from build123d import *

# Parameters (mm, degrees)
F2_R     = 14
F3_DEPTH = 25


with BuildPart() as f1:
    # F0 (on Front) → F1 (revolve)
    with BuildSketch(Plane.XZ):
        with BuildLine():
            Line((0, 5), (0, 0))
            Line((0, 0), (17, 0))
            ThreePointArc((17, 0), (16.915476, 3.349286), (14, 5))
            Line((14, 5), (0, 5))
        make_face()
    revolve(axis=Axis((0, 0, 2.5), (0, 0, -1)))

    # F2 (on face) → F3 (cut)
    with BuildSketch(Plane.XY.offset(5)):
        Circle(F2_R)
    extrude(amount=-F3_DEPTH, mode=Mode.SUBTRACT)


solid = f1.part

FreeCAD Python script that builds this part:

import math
import FreeCAD as App
import Part
import Sketcher

V = App.Vector

doc = App.newDocument("Part")
body = doc.addObject("PartDesign::Body", "Body")

sketch1 = doc.addObject("Sketcher::SketchObject", "Sketch")
body.addObject(sketch1)
sketch1.AttachmentSupport = (doc.XZ_Plane, [""])
sketch1.MapMode = "FlatFace"
sketch1.addGeometry(Part.LineSegment(V(0, 5, 0), V(0, 0, 0)), False)
sketch1.addGeometry(Part.LineSegment(V(0, 0, 0), V(17, 0, 0)), False)
sketch1.addGeometry(Part.ArcOfCircle(Part.Circle(V(14, 1.6, 0), V(0, 0, 1), 3.4), math.radians(-28), math.radians(90)), False)
sketch1.addGeometry(Part.LineSegment(V(14, 5, 0), V(0, 5, 0)), False)
sketch1.addConstraint(Sketcher.Constraint("Coincident", 0, 2, 1, 1))
sketch1.addConstraint(Sketcher.Constraint("Coincident", 1, 2, 2, 1))
sketch1.addConstraint(Sketcher.Constraint("Tangent", 2, 2, 3, 1))
sketch1.addConstraint(Sketcher.Constraint("Coincident", 3, 2, 0, 1))
sketch1.addConstraint(Sketcher.Constraint("Vertical", 0))
sketch1.addConstraint(Sketcher.Constraint("Horizontal", 1))
sketch1.addConstraint(Sketcher.Constraint("Horizontal", 3))
sketch1.addConstraint(Sketcher.Constraint("Coincident", 0, 2, -1, 1))
sketch1.addConstraint(Sketcher.Constraint("Radius", 2, 3.4))
sketch1.addConstraint(Sketcher.Constraint("DistanceX", 1, 1, 1, 2, 17.0))
sketch1.addConstraint(Sketcher.Constraint("DistanceX", 3, 2, 3, 1, 14.0))
revolution = doc.addObject("PartDesign::Revolution", "Revolution")
body.addObject(revolution)
revolution.Profile = sketch1
revolution.ReferenceAxis = (sketch1, ["V_Axis"])
revolution.Angle = 360

sketch2 = doc.addObject("Sketcher::SketchObject", "Sketch001")
body.addObject(sketch2)
sketch2.AttachmentSupport = (doc.XY_Plane, [""])
sketch2.MapMode = "FlatFace"
sketch2.AttachmentOffset = App.Placement(V(0, 0, 5), App.Rotation())
sketch2.addGeometry(Part.Circle(V(0, 0, 0), V(0, 0, 1), 14), False)
sketch2.addConstraint(Sketcher.Constraint("Coincident", 0, 3, -1, 1))
sketch2.addConstraint(Sketcher.Constraint("Diameter", 0, 28.0))
pocket1 = doc.addObject("PartDesign::Pocket", "Pocket")
body.addObject(pocket1)
pocket1.Profile = sketch2
pocket1.Length = 25

doc.recompute()
